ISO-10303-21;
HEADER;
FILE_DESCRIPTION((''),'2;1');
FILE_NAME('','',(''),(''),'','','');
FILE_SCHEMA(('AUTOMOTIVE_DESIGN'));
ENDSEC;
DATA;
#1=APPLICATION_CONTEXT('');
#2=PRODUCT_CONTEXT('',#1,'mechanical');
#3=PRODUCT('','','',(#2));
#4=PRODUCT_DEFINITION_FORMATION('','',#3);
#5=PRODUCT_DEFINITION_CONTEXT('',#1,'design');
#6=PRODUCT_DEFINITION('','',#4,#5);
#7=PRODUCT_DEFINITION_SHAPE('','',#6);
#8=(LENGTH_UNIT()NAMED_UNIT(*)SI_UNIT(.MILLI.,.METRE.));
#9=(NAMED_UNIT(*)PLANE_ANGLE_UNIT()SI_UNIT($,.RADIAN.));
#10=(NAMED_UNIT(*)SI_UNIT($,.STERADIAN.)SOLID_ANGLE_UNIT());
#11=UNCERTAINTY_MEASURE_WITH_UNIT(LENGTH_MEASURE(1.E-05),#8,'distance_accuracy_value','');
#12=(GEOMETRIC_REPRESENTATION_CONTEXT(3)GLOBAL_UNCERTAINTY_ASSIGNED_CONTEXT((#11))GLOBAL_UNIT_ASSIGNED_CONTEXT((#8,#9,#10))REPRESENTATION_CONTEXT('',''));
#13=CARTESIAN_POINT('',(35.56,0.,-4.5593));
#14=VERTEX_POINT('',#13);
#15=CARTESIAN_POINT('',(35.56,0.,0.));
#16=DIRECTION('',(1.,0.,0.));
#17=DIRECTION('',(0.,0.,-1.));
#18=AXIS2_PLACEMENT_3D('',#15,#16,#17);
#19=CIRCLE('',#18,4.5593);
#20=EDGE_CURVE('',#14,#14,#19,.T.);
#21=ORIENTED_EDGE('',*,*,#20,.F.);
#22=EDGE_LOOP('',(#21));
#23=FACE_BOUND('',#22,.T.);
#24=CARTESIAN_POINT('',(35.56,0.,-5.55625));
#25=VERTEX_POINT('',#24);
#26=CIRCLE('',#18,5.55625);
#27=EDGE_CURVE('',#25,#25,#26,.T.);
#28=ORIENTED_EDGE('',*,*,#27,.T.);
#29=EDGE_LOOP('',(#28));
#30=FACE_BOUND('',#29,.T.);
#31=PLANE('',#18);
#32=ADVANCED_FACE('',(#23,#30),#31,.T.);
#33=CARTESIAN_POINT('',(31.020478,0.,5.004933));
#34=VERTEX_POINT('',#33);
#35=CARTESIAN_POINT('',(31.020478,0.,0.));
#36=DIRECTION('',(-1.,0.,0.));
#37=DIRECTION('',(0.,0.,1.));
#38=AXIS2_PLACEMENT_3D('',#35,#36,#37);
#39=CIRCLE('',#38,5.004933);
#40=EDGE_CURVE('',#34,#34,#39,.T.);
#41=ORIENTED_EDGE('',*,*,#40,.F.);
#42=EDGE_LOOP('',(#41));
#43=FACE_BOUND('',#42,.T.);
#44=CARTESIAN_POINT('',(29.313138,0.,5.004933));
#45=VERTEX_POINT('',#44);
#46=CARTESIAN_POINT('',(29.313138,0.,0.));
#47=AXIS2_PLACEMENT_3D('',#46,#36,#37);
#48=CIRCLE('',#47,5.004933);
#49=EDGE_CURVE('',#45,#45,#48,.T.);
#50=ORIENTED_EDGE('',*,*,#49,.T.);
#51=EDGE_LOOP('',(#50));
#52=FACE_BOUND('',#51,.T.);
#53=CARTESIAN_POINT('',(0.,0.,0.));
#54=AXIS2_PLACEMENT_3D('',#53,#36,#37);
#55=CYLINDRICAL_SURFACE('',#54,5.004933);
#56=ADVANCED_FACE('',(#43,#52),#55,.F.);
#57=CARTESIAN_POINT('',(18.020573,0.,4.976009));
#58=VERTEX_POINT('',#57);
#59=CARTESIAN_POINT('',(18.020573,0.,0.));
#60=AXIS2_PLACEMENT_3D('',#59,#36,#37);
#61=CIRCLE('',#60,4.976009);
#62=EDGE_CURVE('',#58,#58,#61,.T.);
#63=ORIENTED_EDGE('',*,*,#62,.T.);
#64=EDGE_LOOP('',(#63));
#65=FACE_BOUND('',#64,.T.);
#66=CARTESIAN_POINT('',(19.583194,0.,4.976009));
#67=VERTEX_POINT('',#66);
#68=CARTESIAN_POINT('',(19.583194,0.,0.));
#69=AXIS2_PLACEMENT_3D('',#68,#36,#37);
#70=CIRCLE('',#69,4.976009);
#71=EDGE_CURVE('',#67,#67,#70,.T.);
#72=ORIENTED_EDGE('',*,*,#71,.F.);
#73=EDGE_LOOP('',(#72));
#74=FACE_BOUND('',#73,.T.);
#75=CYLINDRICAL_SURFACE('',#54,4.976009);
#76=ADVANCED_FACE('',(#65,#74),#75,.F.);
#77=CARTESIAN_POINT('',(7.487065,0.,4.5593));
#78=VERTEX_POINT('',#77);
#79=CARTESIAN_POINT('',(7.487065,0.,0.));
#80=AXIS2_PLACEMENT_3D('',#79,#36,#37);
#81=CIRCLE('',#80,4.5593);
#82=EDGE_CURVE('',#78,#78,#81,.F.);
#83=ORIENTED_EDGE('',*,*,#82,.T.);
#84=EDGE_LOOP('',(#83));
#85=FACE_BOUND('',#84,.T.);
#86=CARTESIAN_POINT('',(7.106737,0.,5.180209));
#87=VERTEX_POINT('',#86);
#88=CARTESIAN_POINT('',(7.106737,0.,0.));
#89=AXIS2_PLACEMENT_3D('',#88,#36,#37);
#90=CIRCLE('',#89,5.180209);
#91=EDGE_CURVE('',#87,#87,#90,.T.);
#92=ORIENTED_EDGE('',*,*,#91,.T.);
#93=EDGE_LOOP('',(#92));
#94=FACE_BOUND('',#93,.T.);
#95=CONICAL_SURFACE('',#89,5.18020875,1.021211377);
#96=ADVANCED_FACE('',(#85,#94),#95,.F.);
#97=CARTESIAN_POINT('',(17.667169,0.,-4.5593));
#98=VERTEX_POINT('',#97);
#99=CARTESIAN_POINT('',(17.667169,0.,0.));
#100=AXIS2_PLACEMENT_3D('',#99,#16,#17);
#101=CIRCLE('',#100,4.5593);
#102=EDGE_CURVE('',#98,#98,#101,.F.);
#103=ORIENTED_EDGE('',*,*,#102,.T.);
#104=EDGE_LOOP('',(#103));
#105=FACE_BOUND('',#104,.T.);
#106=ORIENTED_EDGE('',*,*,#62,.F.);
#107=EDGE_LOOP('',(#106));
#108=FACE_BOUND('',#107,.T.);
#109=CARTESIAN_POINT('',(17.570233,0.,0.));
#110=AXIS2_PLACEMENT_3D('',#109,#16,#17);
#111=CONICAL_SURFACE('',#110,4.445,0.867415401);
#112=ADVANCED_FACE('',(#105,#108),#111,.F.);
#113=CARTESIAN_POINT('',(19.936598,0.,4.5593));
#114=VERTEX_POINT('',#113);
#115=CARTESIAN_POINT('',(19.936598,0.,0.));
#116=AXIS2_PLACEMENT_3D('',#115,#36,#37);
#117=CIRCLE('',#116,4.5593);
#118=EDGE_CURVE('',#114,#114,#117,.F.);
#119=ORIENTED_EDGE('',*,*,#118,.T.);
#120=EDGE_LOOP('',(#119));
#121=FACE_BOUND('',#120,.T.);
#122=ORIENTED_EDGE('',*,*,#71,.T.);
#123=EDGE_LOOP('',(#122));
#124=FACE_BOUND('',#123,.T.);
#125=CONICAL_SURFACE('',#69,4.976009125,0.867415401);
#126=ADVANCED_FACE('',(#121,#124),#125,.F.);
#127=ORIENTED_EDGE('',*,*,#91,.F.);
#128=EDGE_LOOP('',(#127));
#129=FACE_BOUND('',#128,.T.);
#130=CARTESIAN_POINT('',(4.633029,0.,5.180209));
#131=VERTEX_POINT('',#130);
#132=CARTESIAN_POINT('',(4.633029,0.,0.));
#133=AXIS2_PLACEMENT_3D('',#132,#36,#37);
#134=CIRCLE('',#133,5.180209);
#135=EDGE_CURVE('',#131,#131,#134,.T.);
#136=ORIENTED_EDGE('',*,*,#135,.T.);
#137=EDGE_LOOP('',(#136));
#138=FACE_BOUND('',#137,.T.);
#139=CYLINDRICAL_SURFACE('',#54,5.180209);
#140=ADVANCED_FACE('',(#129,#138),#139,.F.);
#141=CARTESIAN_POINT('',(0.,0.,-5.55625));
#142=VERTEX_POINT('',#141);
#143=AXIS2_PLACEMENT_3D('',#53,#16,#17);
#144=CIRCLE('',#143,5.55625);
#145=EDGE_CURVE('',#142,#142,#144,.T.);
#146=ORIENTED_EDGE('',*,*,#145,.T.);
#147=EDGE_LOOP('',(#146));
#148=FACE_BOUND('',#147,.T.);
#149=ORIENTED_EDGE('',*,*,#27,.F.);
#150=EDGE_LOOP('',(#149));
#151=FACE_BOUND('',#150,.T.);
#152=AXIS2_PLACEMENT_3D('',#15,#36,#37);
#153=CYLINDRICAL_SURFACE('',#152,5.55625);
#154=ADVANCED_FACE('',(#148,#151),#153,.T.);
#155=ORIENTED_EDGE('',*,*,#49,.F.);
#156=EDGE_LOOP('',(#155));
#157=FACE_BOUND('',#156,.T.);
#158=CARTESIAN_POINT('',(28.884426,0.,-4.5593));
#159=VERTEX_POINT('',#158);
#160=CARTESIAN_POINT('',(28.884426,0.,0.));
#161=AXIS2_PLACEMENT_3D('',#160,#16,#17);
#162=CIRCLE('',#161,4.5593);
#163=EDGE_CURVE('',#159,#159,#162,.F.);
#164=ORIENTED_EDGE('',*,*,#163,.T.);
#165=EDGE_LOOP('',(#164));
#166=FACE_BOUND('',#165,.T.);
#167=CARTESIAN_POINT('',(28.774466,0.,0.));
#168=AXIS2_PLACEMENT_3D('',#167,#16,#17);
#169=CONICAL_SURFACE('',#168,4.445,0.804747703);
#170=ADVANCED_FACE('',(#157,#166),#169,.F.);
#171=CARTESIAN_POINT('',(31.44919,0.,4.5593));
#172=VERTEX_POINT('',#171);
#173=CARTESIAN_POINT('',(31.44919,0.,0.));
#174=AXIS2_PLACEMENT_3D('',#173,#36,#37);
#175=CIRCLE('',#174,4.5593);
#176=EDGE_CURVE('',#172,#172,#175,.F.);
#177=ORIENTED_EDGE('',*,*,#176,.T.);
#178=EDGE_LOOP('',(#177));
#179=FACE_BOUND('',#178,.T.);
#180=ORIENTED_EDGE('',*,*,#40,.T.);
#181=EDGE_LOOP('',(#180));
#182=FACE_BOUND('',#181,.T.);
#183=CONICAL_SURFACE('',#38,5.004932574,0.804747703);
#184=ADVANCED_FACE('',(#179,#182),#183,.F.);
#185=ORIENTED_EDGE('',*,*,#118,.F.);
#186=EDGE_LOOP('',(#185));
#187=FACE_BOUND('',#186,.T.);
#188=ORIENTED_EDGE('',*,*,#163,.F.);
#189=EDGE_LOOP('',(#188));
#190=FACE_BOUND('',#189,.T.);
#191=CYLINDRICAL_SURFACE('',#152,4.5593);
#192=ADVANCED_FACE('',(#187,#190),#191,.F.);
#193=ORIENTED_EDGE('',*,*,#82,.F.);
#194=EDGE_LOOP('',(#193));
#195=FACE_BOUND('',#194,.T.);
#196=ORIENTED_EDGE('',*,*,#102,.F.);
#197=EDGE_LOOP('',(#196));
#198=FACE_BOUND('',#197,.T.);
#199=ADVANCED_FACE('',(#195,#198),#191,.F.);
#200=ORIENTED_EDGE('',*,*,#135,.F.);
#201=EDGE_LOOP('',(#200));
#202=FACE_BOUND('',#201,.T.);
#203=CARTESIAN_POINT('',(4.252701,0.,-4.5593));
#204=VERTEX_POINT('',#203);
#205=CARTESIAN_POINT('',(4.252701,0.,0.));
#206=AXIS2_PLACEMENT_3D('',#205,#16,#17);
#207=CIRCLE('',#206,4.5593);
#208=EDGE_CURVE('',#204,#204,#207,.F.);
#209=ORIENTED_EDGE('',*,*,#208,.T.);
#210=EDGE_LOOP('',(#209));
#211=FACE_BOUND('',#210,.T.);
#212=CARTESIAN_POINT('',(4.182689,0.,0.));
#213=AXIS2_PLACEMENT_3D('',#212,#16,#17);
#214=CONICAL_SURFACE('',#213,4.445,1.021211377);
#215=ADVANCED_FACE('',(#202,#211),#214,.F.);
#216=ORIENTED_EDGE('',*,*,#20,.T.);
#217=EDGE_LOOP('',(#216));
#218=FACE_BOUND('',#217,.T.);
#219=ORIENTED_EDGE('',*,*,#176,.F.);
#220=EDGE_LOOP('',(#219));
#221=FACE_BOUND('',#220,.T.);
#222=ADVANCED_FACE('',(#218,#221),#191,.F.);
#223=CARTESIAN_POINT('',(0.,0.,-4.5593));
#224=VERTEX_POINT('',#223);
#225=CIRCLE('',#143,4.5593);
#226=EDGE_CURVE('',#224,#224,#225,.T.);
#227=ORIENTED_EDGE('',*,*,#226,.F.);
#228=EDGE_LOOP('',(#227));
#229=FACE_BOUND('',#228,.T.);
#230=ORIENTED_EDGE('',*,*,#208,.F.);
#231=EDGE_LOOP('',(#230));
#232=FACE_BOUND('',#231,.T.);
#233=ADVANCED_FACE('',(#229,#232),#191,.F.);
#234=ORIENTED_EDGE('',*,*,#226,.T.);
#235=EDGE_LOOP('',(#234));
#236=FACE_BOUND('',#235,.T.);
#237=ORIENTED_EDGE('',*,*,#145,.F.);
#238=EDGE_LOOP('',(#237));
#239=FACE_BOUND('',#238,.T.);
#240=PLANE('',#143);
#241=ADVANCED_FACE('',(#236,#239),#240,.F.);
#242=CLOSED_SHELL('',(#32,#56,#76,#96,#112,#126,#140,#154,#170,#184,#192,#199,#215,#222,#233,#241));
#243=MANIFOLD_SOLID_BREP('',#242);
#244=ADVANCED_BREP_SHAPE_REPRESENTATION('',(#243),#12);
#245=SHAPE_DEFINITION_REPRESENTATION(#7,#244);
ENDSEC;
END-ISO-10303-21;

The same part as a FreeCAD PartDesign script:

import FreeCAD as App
import Part
import Sketcher
from FreeCAD import Vector
Q = App.Units.Quantity


def add_polygon(sketch, points):
    """Adds a closed chain of lines whose ends are joined by coincident constraints."""
    first, n = sketch.GeometryCount, len(points)
    for a, b in zip(points, points[1:] + points[:1]):
        sketch.addGeometry(Part.LineSegment(App.Vector(*a, 0), App.Vector(*b, 0)), False)
    for i in range(n):
        sketch.addConstraint(Sketcher.Constraint("Coincident", first + i, 2, first + (i + 1) % n, 1))

doc = App.newDocument("Part")
body = doc.addObject("PartDesign::Body", "Body")

# Sketch on YZ plane
sketch1 = body.newObject("Sketcher::SketchObject", "Sketch")
sketch1.AttachmentSupport = (doc.getObject("YZ_Plane"), [""])
sketch1.MapMode = "FlatFace"
sketch1.addGeometry([
    Part.Circle(Vector(0, 0, 0), Vector(0, 0, 1), 5.55625),
    Part.Circle(Vector(0, 0, 0), Vector(0, 0, 1), 4.5593),
], False)
sketch1.addConstraint([
    Sketcher.Constraint("Coincident", 0, 3, -1, 1),
    Sketcher.Constraint("Coincident", 1, 3, -1, 1),
    Sketcher.Constraint("Diameter", 0, Q("0.4375 in")),
    Sketcher.Constraint("Diameter", 1, Q("0.359 in")),
])
pad1 = body.newObject("PartDesign::Pad", "Pad")
pad1.Profile = sketch1
pad1.Length = Q("1.4 in")

# Sketch on XY plane
sketch2 = body.newObject("Sketcher::SketchObject", "Sketch001")
sketch2.AttachmentSupport = (doc.getObject("XY_Plane"), [""])
sketch2.MapMode = "FlatFace"
add_polygon(sketch2, [(20.033534, -4.445), (17.570233, -4.445), (18.020573, -4.976009), (19.583194, -4.976009)])  # lines 0-3
add_polygon(sketch2, [(31.55915, -4.445), (28.774466, -4.445), (29.313138, -5.004933), (31.020478, -5.004933)])  # lines 4-7
add_polygon(sketch2, [(7.557078, -4.445), (4.182689, -4.445), (4.633029, -5.180209), (7.106737, -5.180209)])  # lines 8-11
sketch2.addConstraint([
    Sketcher.Constraint("Horizontal", 0),
    Sketcher.Constraint("Horizontal", 2),
    Sketcher.Constraint("Horizontal", 4),
    Sketcher.Constraint("Horizontal", 6),
    Sketcher.Constraint("Horizontal", 8),
    Sketcher.Constraint("Horizontal", 10),
    Sketcher.Constraint("Horizontal", 3, 2, 4, 2),
    Sketcher.Constraint("Horizontal", 7, 2, 8, 2),
    Sketcher.Constraint("Equal", 1, 3),
    Sketcher.Constraint("Equal", 5, 7),
    Sketcher.Constraint("Equal", 9, 11),
    Sketcher.Constraint("DistanceY", 0, 2, -1, 1, Q("0.175 in")),
    Sketcher.Constraint("DistanceX", 0, 2, 0, 1, Q("2.463302 mm")),
    Sketcher.Constraint("DistanceX", 2, 1, 2, 2, Q("1.56262 mm")),
    Sketcher.Constraint("DistanceX", 6, 1, 6, 2, Q("1.70734 mm")),
    Sketcher.Constraint("DistanceX", 8, 2, 8, 1, Q("3.374389 mm")),
    Sketcher.Constraint("DistanceX", 10, 1, 10, 2, Q("2.473708 mm")),
    Sketcher.Constraint("DistanceY", 9, 2, 1, 2, Q("0.2042 mm")),
    Sketcher.Constraint("Distance", 1, Q("0.69626 mm")),
    Sketcher.Constraint("DistanceX", 4, 2, 4, 1, Q("2.784685 mm")),
    Sketcher.Constraint("DistanceX", -1, 1, 5, 2, Q("29.313138 mm")),
    Sketcher.Constraint("DistanceX", -1, 1, 8, 2, Q("4.182689 mm")),
    Sketcher.Constraint("DistanceX", 3, 2, 4, 2, Q("8.740931 mm")),
    Sketcher.Constraint("Distance", 5, Q("0.776976 mm")),
])
groove = body.newObject("PartDesign::Groove", "Groove")
groove.Profile = sketch2
groove.ReferenceAxis = (sketch2, ["H_Axis"])
groove.Angle = 360

doc.recompute()
